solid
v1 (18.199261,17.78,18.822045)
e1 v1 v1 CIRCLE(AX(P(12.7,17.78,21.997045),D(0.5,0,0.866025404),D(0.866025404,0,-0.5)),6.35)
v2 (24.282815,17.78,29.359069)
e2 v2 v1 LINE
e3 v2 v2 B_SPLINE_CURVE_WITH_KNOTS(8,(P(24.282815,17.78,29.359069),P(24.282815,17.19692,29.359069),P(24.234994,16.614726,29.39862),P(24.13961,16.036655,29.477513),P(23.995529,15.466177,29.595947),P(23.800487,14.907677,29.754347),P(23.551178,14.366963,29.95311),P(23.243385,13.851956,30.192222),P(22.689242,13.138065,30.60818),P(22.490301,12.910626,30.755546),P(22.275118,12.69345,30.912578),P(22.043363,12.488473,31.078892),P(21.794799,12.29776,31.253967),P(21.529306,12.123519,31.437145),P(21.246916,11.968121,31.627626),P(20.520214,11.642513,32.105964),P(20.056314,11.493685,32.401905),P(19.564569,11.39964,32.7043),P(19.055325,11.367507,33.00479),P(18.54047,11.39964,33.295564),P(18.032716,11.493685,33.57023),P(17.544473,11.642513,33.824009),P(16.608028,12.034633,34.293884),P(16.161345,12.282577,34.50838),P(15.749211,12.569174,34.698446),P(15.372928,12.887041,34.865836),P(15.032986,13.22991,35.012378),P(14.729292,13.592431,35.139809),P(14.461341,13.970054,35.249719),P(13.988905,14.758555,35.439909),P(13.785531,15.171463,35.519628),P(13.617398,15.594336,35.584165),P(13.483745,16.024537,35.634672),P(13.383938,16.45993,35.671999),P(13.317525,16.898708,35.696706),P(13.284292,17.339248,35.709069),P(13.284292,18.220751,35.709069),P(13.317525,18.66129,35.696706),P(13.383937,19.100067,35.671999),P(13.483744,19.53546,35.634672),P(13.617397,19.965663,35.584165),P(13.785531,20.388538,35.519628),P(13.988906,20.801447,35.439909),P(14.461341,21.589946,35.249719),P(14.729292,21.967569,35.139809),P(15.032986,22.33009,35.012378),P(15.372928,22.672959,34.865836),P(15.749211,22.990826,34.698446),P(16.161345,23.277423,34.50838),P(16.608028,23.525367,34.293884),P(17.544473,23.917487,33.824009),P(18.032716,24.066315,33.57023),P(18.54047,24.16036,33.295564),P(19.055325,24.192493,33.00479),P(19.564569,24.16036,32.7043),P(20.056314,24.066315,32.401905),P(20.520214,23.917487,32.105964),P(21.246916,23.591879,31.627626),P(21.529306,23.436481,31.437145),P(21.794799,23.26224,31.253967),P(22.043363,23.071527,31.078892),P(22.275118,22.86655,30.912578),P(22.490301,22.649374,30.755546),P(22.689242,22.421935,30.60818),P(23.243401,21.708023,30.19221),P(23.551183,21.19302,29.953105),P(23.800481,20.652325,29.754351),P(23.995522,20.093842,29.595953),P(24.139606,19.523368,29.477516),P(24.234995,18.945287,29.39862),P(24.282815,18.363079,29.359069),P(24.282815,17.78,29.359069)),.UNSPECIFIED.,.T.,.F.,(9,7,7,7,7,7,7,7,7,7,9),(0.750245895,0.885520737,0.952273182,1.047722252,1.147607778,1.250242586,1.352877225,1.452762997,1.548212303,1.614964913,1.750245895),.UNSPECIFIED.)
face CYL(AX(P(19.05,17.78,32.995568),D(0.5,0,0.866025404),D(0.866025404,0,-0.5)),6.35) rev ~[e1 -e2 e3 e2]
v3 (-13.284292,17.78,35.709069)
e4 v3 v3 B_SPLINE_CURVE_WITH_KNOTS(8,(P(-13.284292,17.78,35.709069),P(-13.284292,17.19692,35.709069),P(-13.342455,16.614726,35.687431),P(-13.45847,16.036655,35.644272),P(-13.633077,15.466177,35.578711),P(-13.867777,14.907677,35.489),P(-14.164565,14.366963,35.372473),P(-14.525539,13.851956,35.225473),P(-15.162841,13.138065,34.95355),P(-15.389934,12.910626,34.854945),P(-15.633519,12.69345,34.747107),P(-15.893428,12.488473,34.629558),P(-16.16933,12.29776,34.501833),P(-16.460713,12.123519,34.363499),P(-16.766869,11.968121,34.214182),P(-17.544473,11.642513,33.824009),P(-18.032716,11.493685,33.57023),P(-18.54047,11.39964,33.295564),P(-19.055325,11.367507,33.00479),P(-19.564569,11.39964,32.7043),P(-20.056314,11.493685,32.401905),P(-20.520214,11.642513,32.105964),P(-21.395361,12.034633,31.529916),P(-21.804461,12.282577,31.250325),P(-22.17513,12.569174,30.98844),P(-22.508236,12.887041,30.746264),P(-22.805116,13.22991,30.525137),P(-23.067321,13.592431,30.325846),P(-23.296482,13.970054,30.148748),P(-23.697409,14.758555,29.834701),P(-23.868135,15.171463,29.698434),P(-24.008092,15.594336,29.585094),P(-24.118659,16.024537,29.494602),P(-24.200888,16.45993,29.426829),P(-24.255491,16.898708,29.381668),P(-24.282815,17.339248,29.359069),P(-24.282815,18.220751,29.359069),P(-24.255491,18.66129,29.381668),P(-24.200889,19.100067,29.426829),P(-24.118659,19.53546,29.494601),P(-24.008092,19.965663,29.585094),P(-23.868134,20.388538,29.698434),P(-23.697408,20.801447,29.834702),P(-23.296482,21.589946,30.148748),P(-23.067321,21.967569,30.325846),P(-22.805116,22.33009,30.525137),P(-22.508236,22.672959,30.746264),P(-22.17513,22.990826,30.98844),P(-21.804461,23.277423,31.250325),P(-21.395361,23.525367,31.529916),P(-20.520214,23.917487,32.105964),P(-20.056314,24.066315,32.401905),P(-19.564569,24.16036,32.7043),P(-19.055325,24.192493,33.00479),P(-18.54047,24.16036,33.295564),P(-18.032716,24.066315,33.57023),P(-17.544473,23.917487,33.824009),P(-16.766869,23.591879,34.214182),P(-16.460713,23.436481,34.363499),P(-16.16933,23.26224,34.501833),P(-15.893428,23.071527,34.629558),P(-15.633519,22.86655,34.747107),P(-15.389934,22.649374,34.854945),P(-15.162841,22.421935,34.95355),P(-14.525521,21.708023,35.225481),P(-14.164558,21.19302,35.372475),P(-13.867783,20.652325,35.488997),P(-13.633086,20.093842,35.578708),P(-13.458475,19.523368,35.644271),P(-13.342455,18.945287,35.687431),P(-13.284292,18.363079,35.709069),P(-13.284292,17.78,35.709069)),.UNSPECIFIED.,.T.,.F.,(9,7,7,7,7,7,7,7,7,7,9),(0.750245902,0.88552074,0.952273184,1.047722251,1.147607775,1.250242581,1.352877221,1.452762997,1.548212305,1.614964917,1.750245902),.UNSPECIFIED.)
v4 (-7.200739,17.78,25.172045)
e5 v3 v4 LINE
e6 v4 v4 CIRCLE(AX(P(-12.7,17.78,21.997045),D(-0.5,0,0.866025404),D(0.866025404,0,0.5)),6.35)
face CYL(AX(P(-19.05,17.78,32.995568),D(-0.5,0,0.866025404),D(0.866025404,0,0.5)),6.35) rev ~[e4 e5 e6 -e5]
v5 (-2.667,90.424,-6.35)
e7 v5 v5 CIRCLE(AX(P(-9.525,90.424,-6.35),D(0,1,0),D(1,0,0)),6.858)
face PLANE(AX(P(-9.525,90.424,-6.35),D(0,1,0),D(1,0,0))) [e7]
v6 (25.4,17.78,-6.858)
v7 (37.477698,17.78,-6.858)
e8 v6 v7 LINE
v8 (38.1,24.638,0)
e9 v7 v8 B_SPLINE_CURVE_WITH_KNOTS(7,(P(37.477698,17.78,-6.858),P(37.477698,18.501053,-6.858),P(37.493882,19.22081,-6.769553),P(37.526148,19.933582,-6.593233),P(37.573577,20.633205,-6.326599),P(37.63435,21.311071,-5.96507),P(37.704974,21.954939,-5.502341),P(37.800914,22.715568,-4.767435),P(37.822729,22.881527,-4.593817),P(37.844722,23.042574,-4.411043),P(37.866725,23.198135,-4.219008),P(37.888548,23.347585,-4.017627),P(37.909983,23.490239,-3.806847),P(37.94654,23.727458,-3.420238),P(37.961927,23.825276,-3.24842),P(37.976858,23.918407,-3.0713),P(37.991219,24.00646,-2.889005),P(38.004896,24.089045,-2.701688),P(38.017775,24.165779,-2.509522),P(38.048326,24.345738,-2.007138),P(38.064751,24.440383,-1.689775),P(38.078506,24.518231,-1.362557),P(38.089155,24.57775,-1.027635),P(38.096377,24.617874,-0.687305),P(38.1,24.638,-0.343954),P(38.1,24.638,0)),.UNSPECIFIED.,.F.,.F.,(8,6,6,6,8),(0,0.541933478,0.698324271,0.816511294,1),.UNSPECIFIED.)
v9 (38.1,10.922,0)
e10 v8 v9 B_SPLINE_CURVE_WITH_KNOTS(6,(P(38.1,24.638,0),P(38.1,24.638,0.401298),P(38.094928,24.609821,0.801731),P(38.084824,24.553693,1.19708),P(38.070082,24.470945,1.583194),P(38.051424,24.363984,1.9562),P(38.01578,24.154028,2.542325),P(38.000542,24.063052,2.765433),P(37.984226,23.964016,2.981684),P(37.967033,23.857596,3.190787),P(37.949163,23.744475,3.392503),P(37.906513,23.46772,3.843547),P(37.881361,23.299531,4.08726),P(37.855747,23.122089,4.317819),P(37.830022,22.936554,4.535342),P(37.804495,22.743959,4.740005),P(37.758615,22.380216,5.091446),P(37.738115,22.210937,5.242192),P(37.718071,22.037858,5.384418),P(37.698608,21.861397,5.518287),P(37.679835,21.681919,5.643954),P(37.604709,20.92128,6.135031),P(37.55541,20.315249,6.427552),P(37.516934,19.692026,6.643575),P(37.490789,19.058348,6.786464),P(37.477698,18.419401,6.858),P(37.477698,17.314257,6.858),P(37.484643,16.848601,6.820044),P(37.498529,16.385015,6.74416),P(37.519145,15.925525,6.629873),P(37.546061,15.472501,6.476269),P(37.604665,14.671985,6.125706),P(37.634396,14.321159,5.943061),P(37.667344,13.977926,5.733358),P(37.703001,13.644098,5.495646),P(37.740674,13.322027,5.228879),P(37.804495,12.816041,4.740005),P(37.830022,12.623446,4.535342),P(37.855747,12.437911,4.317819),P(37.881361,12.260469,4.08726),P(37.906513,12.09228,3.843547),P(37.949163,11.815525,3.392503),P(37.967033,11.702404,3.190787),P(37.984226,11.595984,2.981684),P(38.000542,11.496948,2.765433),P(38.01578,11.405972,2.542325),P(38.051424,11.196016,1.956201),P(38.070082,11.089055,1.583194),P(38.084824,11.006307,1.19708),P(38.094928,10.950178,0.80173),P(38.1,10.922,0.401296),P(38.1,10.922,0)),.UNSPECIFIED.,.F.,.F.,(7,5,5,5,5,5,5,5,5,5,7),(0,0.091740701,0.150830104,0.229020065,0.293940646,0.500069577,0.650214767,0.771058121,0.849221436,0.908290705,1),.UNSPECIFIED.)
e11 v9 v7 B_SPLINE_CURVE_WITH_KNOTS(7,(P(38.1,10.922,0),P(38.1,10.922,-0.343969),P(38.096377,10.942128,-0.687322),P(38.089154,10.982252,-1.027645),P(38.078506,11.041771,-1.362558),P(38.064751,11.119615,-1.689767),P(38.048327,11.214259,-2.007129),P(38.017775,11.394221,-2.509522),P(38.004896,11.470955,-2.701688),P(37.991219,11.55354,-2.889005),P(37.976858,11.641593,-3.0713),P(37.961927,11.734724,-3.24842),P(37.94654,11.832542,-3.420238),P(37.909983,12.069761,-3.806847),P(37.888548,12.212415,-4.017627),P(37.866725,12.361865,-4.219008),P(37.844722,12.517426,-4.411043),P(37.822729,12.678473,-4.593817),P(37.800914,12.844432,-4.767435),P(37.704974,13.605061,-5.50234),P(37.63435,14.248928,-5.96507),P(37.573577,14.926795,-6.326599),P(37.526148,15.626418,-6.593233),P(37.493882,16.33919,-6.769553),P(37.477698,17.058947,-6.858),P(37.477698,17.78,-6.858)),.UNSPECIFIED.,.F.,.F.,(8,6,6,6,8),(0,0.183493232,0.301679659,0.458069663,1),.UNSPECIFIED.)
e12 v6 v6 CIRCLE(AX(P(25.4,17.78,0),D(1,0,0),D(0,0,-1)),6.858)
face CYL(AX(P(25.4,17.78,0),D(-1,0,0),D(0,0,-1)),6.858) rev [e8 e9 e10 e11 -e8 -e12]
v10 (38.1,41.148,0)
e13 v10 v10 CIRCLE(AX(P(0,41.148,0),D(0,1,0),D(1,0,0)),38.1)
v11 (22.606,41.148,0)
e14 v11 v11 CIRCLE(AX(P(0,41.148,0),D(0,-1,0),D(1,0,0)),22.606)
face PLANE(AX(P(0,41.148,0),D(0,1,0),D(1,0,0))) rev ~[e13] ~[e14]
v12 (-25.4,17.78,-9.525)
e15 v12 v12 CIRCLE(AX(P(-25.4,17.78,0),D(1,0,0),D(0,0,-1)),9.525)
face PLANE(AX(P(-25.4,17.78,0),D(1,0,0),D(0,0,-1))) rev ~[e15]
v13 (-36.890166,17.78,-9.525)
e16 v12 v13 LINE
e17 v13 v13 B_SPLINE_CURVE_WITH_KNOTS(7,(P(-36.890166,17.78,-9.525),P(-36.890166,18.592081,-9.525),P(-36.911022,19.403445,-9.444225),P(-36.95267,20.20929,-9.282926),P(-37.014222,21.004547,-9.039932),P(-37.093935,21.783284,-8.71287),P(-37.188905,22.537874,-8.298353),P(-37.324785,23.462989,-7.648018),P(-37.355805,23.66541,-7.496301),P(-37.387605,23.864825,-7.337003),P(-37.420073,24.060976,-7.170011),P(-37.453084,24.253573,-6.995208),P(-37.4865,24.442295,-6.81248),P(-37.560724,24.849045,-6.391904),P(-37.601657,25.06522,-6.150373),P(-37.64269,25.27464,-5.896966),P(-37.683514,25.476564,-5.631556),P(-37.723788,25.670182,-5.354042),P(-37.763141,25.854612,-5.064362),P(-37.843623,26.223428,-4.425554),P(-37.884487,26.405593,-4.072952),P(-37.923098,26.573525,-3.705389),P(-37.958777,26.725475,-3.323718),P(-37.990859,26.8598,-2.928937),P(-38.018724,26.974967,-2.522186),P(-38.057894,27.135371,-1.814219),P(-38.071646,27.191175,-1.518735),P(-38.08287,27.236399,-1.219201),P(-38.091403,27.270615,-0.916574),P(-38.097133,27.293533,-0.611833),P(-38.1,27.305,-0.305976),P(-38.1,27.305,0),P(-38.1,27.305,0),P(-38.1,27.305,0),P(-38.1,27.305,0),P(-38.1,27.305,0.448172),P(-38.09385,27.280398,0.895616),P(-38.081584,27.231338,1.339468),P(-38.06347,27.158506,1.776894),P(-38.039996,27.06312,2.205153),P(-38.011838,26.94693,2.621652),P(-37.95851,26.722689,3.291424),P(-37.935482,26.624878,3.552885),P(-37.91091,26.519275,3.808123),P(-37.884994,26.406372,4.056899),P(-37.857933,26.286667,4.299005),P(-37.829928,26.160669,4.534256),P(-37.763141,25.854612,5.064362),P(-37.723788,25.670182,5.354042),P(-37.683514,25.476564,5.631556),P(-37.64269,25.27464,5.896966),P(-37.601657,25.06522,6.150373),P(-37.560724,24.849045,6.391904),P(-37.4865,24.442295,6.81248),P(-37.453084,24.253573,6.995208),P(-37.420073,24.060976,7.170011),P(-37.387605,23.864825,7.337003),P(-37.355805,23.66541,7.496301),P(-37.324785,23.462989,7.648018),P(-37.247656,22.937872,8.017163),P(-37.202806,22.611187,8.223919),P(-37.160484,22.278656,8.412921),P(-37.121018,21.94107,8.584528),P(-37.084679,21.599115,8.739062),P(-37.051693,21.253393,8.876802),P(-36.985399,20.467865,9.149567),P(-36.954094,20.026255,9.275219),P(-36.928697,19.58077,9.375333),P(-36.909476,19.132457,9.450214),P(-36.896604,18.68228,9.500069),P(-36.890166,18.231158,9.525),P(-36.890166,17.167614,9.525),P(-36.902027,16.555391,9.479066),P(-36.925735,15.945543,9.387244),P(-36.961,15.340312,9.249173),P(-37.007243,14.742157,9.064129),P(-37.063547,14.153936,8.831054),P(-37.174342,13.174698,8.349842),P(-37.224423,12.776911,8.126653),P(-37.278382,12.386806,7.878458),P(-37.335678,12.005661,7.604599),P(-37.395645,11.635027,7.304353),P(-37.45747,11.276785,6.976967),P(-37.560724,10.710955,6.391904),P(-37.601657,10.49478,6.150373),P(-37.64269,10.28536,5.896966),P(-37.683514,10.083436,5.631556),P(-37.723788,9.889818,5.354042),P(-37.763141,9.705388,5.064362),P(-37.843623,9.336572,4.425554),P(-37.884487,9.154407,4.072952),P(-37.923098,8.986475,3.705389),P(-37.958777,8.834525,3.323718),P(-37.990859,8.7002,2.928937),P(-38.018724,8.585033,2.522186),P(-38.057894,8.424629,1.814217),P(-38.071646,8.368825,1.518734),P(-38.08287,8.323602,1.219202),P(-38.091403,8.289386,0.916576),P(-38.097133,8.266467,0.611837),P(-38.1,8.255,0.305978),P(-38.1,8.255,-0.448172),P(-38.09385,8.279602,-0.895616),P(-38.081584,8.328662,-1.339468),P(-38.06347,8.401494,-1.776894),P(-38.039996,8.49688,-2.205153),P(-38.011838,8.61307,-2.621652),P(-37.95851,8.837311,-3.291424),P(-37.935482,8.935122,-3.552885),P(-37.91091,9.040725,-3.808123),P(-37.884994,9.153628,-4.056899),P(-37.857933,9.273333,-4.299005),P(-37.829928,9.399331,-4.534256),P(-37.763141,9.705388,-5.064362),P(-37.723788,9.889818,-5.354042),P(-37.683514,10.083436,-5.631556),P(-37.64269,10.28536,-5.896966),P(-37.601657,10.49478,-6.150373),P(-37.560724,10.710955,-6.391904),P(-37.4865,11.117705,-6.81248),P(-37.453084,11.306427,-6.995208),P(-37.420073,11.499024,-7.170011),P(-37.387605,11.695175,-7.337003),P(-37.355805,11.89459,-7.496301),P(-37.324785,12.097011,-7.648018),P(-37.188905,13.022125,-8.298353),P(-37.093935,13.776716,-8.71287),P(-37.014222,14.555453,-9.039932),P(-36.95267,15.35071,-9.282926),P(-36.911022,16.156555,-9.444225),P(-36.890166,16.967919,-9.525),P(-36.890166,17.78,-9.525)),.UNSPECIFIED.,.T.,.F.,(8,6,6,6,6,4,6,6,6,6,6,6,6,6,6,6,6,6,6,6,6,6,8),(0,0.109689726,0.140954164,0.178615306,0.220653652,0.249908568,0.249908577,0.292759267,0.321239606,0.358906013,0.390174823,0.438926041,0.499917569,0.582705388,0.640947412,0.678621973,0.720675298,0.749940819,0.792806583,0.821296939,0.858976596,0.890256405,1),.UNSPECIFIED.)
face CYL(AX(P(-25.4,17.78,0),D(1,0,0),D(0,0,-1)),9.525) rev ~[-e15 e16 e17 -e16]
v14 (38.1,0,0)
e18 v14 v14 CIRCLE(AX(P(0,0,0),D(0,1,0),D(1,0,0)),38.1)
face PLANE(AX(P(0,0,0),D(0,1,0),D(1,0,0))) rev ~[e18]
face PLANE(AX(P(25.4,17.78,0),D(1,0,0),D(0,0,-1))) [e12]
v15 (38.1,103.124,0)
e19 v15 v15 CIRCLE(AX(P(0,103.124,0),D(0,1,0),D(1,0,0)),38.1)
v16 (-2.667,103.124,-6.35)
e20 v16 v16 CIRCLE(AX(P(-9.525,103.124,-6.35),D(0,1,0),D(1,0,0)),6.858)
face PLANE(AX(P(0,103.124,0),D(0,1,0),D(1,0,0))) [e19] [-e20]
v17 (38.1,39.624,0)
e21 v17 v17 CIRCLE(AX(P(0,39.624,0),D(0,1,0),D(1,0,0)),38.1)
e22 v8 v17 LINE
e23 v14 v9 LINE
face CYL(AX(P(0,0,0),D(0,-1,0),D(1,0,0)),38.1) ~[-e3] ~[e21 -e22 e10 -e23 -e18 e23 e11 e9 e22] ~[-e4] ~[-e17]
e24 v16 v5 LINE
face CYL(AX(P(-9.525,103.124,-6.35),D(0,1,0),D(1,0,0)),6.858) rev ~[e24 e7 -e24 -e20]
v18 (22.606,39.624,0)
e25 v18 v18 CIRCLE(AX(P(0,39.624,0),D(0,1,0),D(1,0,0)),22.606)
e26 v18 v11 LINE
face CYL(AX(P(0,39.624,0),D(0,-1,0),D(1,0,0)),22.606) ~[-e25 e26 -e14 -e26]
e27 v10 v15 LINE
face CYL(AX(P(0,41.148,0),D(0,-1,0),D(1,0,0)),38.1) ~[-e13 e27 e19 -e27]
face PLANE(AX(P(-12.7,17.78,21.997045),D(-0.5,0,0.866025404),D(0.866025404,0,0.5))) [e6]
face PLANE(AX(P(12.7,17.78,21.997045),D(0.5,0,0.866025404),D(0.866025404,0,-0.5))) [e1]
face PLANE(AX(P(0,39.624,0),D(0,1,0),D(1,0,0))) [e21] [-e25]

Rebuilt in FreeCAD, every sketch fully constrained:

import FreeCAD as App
import Part
import Sketcher

V = App.Vector
Q = App.Units.Quantity

doc = App.newDocument("Part")
body = doc.addObject("PartDesign::Body", "Body")

sketch1 = body.newObject("Sketcher::SketchObject", "Sketch")
sketch1.AttachmentSupport = (doc.getObject("XZ_Plane"), [""])
sketch1.MapMode = "FlatFace"
sketch1.addGeometry(Part.Circle(V(0, 0, 0), V(0, 0, 1), 38), False)
sketch1.addConstraint([
    Sketcher.Constraint("Coincident", 0, 3, -1, 1),
    Sketcher.Constraint("Diameter", 0, Q("3 in")),
])
pad1 = body.newObject("PartDesign::Pad", "Pad")
pad1.Profile = sketch1
pad1.Length = Q("1.56 in")
pad1.Reversed = True

sketch2 = body.newObject("Sketcher::SketchObject", "Sketch001")
sketch2.AttachmentSupport = (doc.getObject("XZ_Plane"), [""])
sketch2.MapMode = "FlatFace"
sketch2.AttachmentOffset = App.Placement(V(0, 0, -1.56 * 25.4), App.Rotation())
sketch2.addGeometry(Part.Circle(V(0, 0, 0), V(0, 0, 1), 23), False)
sketch2.addConstraint([
    Sketcher.Constraint("Coincident", 0, 3, -1, 1),
    Sketcher.Constraint("Diameter", 0, Q("1.78 in")),
])
pad2 = body.newObject("PartDesign::Pad", "Pad001")
pad2.Profile = sketch2
pad2.Length = Q("0.5 in")
pad2.Reversed = True

sketch3 = body.newObject("Sketcher::SketchObject", "Sketch002")
sketch3.AttachmentSupport = (doc.getObject("XZ_Plane"), [""])
sketch3.MapMode = "FlatFace"
sketch3.AttachmentOffset = App.Placement(V(0, 0, -1.62 * 25.4), App.Rotation())
sketch3.addGeometry(Part.Circle(V(0, 0, 0), V(0, 0, 1), 38), False)
sketch3.addConstraint([
    Sketcher.Constraint("Coincident", 0, 3, -1, 1),
    Sketcher.Constraint("Diameter", 0, Q("3 in")),
])
pad3 = body.newObject("PartDesign::Pad", "Pad002")
pad3.Profile = sketch3
pad3.Length = Q("2.44 in")
pad3.Reversed = True

sketch4 = body.newObject("Sketcher::SketchObject", "Sketch003")
sketch4.AttachmentSupport = (doc.getObject("YZ_Plane"), [""])
sketch4.MapMode = "FlatFace"
sketch4.AttachmentOffset = App.Placement(V(0, 0, 1 * 25.4), App.Rotation())
sketch4.addGeometry(Part.Circle(V(18, 0, 0), V(0, 0, 1), 7), False)
sketch4.addConstraint([
    Sketcher.Constraint("PointOnObject", 0, 3, -1),
    Sketcher.Constraint("Diameter", 0, Q("0.54 in")),
    Sketcher.Constraint("DistanceX", -1, 1, 0, 3, Q("0.7 in")),
])
pocket1 = body.newObject("PartDesign::Pocket", "Pocket")
pocket1.Profile = sketch4
pocket1.Length = Q("0.5 in")
pocket1.Reversed = True

sketch5 = body.newObject("Sketcher::SketchObject", "Sketch004")
sketch5.AttachmentSupport = (doc.getObject("YZ_Plane"), [""])
sketch5.MapMode = "FlatFace"
sketch5.AttachmentOffset = App.Placement(V(0, 0, -1 * 25.4), App.Rotation())
sketch5.addGeometry(Part.Circle(V(18, 0, 0), V(0, 0, 1), 10), False)
sketch5.addConstraint([
    Sketcher.Constraint("PointOnObject", 0, 3, -1),
    Sketcher.Constraint("Diameter", 0, Q("0.75 in")),
    Sketcher.Constraint("DistanceX", -1, 1, 0, 3, Q("0.7 in")),
])
pocket2 = body.newObject("PartDesign::Pocket", "Pocket001")
pocket2.Profile = sketch5
pocket2.Length = Q("0.5 in")

sketch6 = body.newObject("Sketcher::SketchObject", "Sketch005")
sketch6.Placement = App.Placement(V(-19.05, 0, 32.995568), App.Rotation(V(0.866025404, 0, 0.5), V(0, 1, 0), V(-0.5, 0, 0.866025404), "ZXY"))
sketch6.addGeometry(Part.Circle(V(0, 18, 0), V(0, 0, 1), 6), False)
sketch6.addConstraint([
    Sketcher.Constraint("PointOnObject", 0, 3, -2),
    Sketcher.Constraint("Diameter", 0, Q("0.5 in")),
    Sketcher.Constraint("DistanceY", -1, 1, 0, 3, Q("0.7 in")),
])
pocket3 = body.newObject("PartDesign::Pocket", "Pocket002")
pocket3.Profile = sketch6
pocket3.Length = Q("0.5 in")

sketch7 = body.newObject("Sketcher::SketchObject", "Sketch006")
sketch7.Placement = App.Placement(V(19.05, 0, 32.995568), App.Rotation(V(0.866025404, 0, -0.5), V(0, 1, 0), V(0.5, 0, 0.866025404), "ZXY"))
sketch7.addGeometry(Part.Circle(V(0, 18, 0), V(0, 0, 1), 6), False)
sketch7.addConstraint([
    Sketcher.Constraint("PointOnObject", 0, 3, -2),
    Sketcher.Constraint("Diameter", 0, Q("0.5 in")),
    Sketcher.Constraint("DistanceY", -1, 1, 0, 3, Q("0.7 in")),
])
pocket4 = body.newObject("PartDesign::Pocket", "Pocket003")
pocket4.Profile = sketch7
pocket4.Length = Q("0.5 in")

sketch8 = body.newObject("Sketcher::SketchObject", "Sketch007")
sketch8.AttachmentSupport = (doc.getObject("XZ_Plane"), [""])
sketch8.MapMode = "FlatFace"
sketch8.AttachmentOffset = App.Placement(V(0, 0, -4.06 * 25.4), App.Rotation())
sketch8.addGeometry(Part.Circle(V(-10, -6, 0), V(0, 0, 1), 7), False)
sketch8.addConstraint([
    Sketcher.Constraint("Diameter", 0, Q("0.54 in")),
    Sketcher.Constraint("DistanceY", 0, 3, -1, 1, Q("0.25 in")),
    Sketcher.Constraint("DistanceX", 0, 3, -1, 1, Q("0.375 in")),
])
pocket5 = body.newObject("PartDesign::Pocket", "Pocket004")
pocket5.Profile = sketch8
pocket5.Length = Q("0.5 in")
pocket5.Reversed = True

doc.recompute()
